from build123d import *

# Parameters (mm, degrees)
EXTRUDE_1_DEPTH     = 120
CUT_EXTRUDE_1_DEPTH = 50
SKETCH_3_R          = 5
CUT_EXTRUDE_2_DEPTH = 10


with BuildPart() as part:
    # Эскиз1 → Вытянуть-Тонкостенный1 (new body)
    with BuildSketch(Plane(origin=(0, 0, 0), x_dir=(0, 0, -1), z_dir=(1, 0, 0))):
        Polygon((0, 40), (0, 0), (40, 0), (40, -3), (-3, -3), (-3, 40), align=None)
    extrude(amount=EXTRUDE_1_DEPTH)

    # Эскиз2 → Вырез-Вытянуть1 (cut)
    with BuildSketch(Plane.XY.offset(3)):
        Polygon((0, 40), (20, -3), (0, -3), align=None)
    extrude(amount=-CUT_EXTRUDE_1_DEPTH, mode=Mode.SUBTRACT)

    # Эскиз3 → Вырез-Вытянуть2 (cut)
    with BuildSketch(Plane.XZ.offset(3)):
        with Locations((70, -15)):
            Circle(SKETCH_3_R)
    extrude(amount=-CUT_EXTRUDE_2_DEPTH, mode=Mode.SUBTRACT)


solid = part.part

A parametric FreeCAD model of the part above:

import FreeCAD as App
import Part
import Sketcher


def add_polygon(sketch, points):
    """Adds a closed chain of lines whose ends are joined by coincident constraints."""
    first, n = sketch.GeometryCount, len(points)
    for a, b in zip(points, points[1:] + points[:1]):
        sketch.addGeometry(Part.LineSegment(App.Vector(*a, 0), App.Vector(*b, 0)), False)
    for i in range(n):
        sketch.addConstraint(Sketcher.Constraint("Coincident", first + i, 2, first + (i + 1) % n, 1))

doc = App.newDocument("Part")
body = doc.addObject("PartDesign::Body", "Body")

# Sketch on YZ plane
sketch1 = body.newObject("Sketcher::SketchObject", "Sketch")
sketch1.AttachmentSupport = (doc.getObject("YZ_Plane"), [""])
sketch1.MapMode = "FlatFace"
add_polygon(sketch1, [(0, 0), (40, 0), (40, 3), (-3, 3), (-3, -40), (0, -40)])  # lines 0-5
sketch1.addConstraint([
    Sketcher.Constraint("Horizontal", 0),
    Sketcher.Constraint("Vertical", 1),
    Sketcher.Constraint("Horizontal", 2),
    Sketcher.Constraint("Vertical", 3),
    Sketcher.Constraint("Horizontal", 4),
    Sketcher.Constraint("Vertical", 5),
    Sketcher.Constraint("Coincident", 5, 2, -1, 1),
    Sketcher.Constraint("Equal", 4, 1),
    Sketcher.Constraint("Equal", 2, 3),
    Sketcher.Constraint("DistanceX", 0, 1, 0, 2, 40.0),
    Sketcher.Constraint("DistanceX", 2, 2, 2, 1, 43.0),
])
pad1 = body.newObject("PartDesign::Pad", "Pad")
pad1.Profile = sketch1
pad1.Length = 120

# Sketch on XY plane
sketch2 = body.newObject("Sketcher::SketchObject", "Sketch001")
sketch2.AttachmentSupport = (doc.getObject("XY_Plane"), [""])
sketch2.MapMode = "FlatFace"
sketch2.AttachmentOffset = App.Placement(App.Vector(0, 0, 3), App.Rotation())
add_polygon(sketch2, [(20, -3), (0, 40), (0, -3)])  # lines 0-2
sketch2.addConstraint([
    Sketcher.Constraint("Vertical", 1),
    Sketcher.Constraint("Horizontal", 2),
    Sketcher.Constraint("PointOnObject", 0, 2, -2),
    Sketcher.Constraint("DistanceX", 2, 1, 2, 2, 20.0),
    Sketcher.Constraint("DistanceY", 1, 2, 1, 1, 43.0),
    Sketcher.Constraint("DistanceY", -1, 1, 0, 2, 40.0),
])
pocket1 = body.newObject("PartDesign::Pocket", "Pocket")
pocket1.Profile = sketch2
pocket1.Length = 50

# Sketch on XZ plane
sketch3 = body.newObject("Sketcher::SketchObject", "Sketch002")
sketch3.AttachmentSupport = (doc.getObject("XZ_Plane"), [""])
sketch3.MapMode = "FlatFace"
sketch3.AttachmentOffset = App.Placement(App.Vector(0, 0, 3), App.Rotation())
sketch3.addGeometry(Part.Circle(App.Vector(70, -15, 0), App.Vector(0, 0, 1), 5), False)
sketch3.addConstraint([
    Sketcher.Constraint("Diameter", 0, 10.0),
    Sketcher.Constraint("DistanceX", -1, 1, 0, 3, 70.0),
    Sketcher.Constraint("DistanceY", 0, 3, -1, 1, 15.0),
])
pocket2 = body.newObject("PartDesign::Pocket", "Pocket001")
pocket2.Profile = sketch3
pocket2.Length = 10

doc.recompute()
